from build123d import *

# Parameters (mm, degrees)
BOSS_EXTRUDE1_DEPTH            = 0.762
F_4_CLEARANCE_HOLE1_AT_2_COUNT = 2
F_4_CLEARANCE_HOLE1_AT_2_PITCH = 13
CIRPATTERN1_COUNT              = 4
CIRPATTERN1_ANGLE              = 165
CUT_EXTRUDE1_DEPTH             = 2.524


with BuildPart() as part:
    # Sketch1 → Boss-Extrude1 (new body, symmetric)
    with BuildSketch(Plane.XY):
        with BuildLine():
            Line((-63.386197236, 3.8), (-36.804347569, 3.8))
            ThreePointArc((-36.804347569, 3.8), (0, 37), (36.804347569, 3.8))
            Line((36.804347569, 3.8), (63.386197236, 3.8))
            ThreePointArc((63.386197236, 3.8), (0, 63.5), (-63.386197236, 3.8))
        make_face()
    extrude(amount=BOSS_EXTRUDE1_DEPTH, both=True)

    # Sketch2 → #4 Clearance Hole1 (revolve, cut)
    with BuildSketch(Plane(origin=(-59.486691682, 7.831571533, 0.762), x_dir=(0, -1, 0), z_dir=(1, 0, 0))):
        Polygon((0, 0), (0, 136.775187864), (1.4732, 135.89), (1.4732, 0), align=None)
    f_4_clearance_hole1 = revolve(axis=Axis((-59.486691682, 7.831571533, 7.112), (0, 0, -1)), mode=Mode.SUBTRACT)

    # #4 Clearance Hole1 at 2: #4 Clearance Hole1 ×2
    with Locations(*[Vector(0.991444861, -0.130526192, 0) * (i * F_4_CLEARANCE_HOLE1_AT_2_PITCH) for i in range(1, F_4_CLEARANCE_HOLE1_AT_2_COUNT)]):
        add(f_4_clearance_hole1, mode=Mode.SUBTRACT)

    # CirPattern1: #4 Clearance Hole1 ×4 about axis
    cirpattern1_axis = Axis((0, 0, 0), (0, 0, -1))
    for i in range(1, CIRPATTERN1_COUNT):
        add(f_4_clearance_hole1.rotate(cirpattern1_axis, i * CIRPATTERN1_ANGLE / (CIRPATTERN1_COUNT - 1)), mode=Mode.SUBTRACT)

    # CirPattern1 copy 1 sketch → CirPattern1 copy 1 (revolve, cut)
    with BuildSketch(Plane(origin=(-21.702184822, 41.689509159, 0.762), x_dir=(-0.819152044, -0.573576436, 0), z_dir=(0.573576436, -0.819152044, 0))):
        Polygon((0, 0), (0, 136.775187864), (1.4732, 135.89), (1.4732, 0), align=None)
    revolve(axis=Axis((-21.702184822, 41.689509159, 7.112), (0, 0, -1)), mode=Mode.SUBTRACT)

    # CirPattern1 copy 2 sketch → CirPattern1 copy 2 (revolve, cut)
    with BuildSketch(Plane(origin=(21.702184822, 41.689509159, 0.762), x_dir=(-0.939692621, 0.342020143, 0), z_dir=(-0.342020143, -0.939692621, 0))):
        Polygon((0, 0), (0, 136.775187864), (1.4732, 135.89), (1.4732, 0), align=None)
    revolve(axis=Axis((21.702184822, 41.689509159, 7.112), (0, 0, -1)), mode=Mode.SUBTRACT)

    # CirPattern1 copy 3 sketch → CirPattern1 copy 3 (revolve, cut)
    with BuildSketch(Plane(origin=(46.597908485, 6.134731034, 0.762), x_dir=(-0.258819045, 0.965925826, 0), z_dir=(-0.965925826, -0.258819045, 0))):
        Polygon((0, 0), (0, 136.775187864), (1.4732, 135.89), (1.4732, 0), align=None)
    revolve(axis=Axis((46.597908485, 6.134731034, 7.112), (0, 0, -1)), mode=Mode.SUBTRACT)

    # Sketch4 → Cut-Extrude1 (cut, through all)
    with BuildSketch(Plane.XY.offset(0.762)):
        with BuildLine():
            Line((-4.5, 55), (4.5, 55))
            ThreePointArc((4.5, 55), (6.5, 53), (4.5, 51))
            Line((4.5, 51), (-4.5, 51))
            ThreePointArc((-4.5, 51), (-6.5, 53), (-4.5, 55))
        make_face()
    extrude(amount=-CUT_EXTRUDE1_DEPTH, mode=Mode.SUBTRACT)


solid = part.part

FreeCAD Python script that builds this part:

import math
import FreeCAD as App
import Part
import Sketcher
from FreeCAD import Vector
Q = App.Units.Quantity


def add_polygon(sketch, points):
    """Adds a closed chain of lines whose ends are joined by coincident constraints."""
    first, n = sketch.GeometryCount, len(points)
    for a, b in zip(points, points[1:] + points[:1]):
        sketch.addGeometry(Part.LineSegment(App.Vector(*a, 0), App.Vector(*b, 0)), False)
    for i in range(n):
        sketch.addConstraint(Sketcher.Constraint("Coincident", first + i, 2, first + (i + 1) % n, 1))

doc = App.newDocument("Part")
body = doc.addObject("PartDesign::Body", "Body")

sketch1 = doc.addObject("Sketcher::SketchObject", "Sketch")
body.addObject(sketch1)
sketch1.AttachmentSupport = (doc.XY_Plane, [""])
sketch1.MapMode = "FlatFace"
sketch1.addGeometry(Part.LineSegment(Vector(-63, 4, 0), Vector(-37, 4, 0)), False)
sketch1.addGeometry(Part.ArcOfCircle(Part.Circle(Vector(0, 0, 0), Vector(0, 0, 1), 37), math.radians(6), math.radians(174)), False)
sketch1.addGeometry(Part.LineSegment(Vector(37, 4, 0), Vector(63, 4, 0)), False)
sketch1.addGeometry(Part.ArcOfCircle(Part.Circle(Vector(0, 0, 0), Vector(0, 0, 1), 64), math.radians(3), math.radians(177)), False)
sketch1.addConstraint(Sketcher.Constraint("Coincident", 0, 2, 1, 2))
sketch1.addConstraint(Sketcher.Constraint("Coincident", 1, 1, 2, 1))
sketch1.addConstraint(Sketcher.Constraint("Coincident", 2, 2, 3, 1))
sketch1.addConstraint(Sketcher.Constraint("Coincident", 3, 2, 0, 1))
sketch1.addConstraint(Sketcher.Constraint("Horizontal", 0))
sketch1.addConstraint(Sketcher.Constraint("Horizontal", 2))
sketch1.addConstraint(Sketcher.Constraint("Coincident", 1, 3, -1, 1))
sketch1.addConstraint(Sketcher.Constraint("Coincident", 3, 3, -1, 1))
sketch1.addConstraint(Sketcher.Constraint("Horizontal", 0, 2, 1, 1))
sketch1.addConstraint(Sketcher.Constraint("Radius", 3, Q("2.5 in")))
sketch1.addConstraint(Sketcher.Constraint("Radius", 1, Q("37 mm")))
sketch1.addConstraint(Sketcher.Constraint("DistanceX", 0, 1, 0, 2, Q("26.58185 mm")))
pad1 = doc.addObject("PartDesign::Pad", "Pad")
body.addObject(pad1)
pad1.Profile = sketch1
pad1.Length = Q("0.06 in")
pad1.Midplane = True

sketch2 = doc.addObject("Sketcher::SketchObject", "Sketch001")
body.addObject(sketch2)
sketch2.AttachmentSupport = (doc.YZ_Plane, [""])
sketch2.MapMode = "FlatFace"
sketch2.AttachmentOffset = App.Placement(Vector(0, 0, -59.486692), App.Rotation())
add_polygon(sketch2, [(7.8, -136), (7.8, 0.8), (6.4, 0.8), (6.4, -135.1)])
sketch2.addGeometry(Part.LineSegment(Vector(7.8, 0.8, 0), Vector(7.8, -136, 0)), True)
sketch2.addConstraint(Sketcher.Constraint("Vertical", 0))
sketch2.addConstraint(Sketcher.Constraint("Horizontal", 1))
sketch2.addConstraint(Sketcher.Constraint("Vertical", 2))
sketch2.addConstraint(Sketcher.Constraint("Vertical", 4))
sketch2.addConstraint(Sketcher.Constraint("Coincident", 4, 1, 0, 2))
sketch2.addConstraint(Sketcher.Constraint("Equal", 0, 4))
sketch2.addConstraint(Sketcher.Constraint("Angle", 3, Q("-31 deg")))
sketch2.addConstraint(Sketcher.Constraint("DistanceY", 2, 2, 2, 1, Q("5.35 in")))
sketch2.addConstraint(Sketcher.Constraint("DistanceX", 1, 2, 1, 1, Q("0.058 in")))
sketch2.addConstraint(Sketcher.Constraint("DistanceY", -1, 1, 0, 2, Q("0.03 in")))
sketch2.addConstraint(Sketcher.Constraint("DistanceX", -1, 1, 0, 2, Q("7.831572 mm")))
groove = doc.addObject("PartDesign::Groove", "Groove")
body.addObject(groove)
groove.Profile = sketch2
groove.ReferenceAxis = (sketch2, ["Axis0"])
groove.Angle = 360
doc.recompute()

datumline = doc.addObject("PartDesign::Line", "DatumLine")
body.addObject(datumline)
datumline.Placement = App.Placement(Vector(0, 0, 0), App.Rotation(Vector(0, 0, 1), Vector(0.991444861, -0.130526192, 0)))
linearpattern = doc.addObject("PartDesign::LinearPattern", "LinearPattern")
body.addObject(linearpattern)
linearpattern.Originals = [groove]
linearpattern.Direction = (datumline, [""])
linearpattern.Mode = "offset"
linearpattern.Offset = 13
linearpattern.Occurrences = 2
body.Tip = linearpattern
doc.recompute()

polarpattern = doc.addObject("PartDesign::PolarPattern", "PolarPattern")
body.addObject(polarpattern)
polarpattern.Originals = [groove]
polarpattern.Axis = (doc.Z_Axis, [""])
polarpattern.Angle = 165
polarpattern.Occurrences = 4
polarpattern.Reversed = True
body.Tip = polarpattern

sketch3 = doc.addObject("Sketcher::SketchObject", "Sketch002")
body.addObject(sketch3)
sketch3.Placement = App.Placement(Vector(-21.702185, 41.689509, 0.762), App.Rotation(Vector(-0.819152044, -0.573576436, 0), Vector(0, 0, -0.999999999), Vector(0.573576436, -0.819152044, 0), "ZXY"))
add_polygon(sketch3, [(0, 136.8), (0, 0), (1.5, 0), (1.5, 135.9)])
sketch3.addConstraint(Sketcher.Constraint("Vertical", 0))
sketch3.addConstraint(Sketcher.Constraint("Horizontal", 1))
sketch3.addConstraint(Sketcher.Constraint("Vertical", 2))
sketch3.addConstraint(Sketcher.Constraint("Coincident", 0, 2, -1, 1))
sketch3.addConstraint(Sketcher.Constraint("Angle", 3, Q("149 deg")))
sketch3.addConstraint(Sketcher.Constraint("DistanceY", 2, 1, 2, 2, Q("5.35 in")))
sketch3.addConstraint(Sketcher.Constraint("DistanceX", 1, 1, 1, 2, Q("0.058 in")))
groove2 = doc.addObject("PartDesign::Groove", "Groove001")
body.addObject(groove2)
groove2.Profile = sketch3
groove2.ReferenceAxis = (sketch3, ["V_Axis"])
groove2.Angle = 360

sketch4 = doc.addObject("Sketcher::SketchObject", "Sketch003")
body.addObject(sketch4)
sketch4.Placement = App.Placement(Vector(21.702185, 41.689509, 0.762), App.Rotation(Vector(-0.939692621, 0.342020143, 0), Vector(0, 0, -1), Vector(-0.342020143, -0.939692621, 0), "ZXY"))
add_polygon(sketch4, [(0, 136.8), (0, 0), (1.5, 0), (1.5, 135.9)])
sketch4.addConstraint(Sketcher.Constraint("Vertical", 0))
sketch4.addConstraint(Sketcher.Constraint("Horizontal", 1))
sketch4.addConstraint(Sketcher.Constraint("Vertical", 2))
sketch4.addConstraint(Sketcher.Constraint("Coincident", 0, 2, -1, 1))
sketch4.addConstraint(Sketcher.Constraint("Angle", 3, Q("149 deg")))
sketch4.addConstraint(Sketcher.Constraint("DistanceY", 2, 1, 2, 2, Q("5.35 in")))
sketch4.addConstraint(Sketcher.Constraint("DistanceX", 1, 1, 1, 2, Q("0.058 in")))
groove3 = doc.addObject("PartDesign::Groove", "Groove002")
body.addObject(groove3)
groove3.Profile = sketch4
groove3.ReferenceAxis = (sketch4, ["V_Axis"])
groove3.Angle = 360

sketch5 = doc.addObject("Sketcher::SketchObject", "Sketch004")
body.addObject(sketch5)
sketch5.Placement = App.Placement(Vector(46.597908, 6.134731, 0.762), App.Rotation(Vector(-0.258819045, 0.965925826, 0), Vector(0, 0, -0.999999999), Vector(-0.965925826, -0.258819045, 0), "ZXY"))
add_polygon(sketch5, [(0, 136.8), (0, 0), (1.5, 0), (1.5, 135.9)])
sketch5.addConstraint(Sketcher.Constraint("Vertical", 0))
sketch5.addConstraint(Sketcher.Constraint("Horizontal", 1))
sketch5.addConstraint(Sketcher.Constraint("Vertical", 2))
sketch5.addConstraint(Sketcher.Constraint("Coincident", 0, 2, -1, 1))
sketch5.addConstraint(Sketcher.Constraint("Angle", 3, Q("149 deg")))
sketch5.addConstraint(Sketcher.Constraint("DistanceY", 2, 1, 2, 2, Q("5.35 in")))
sketch5.addConstraint(Sketcher.Constraint("DistanceX", 1, 1, 1, 2, Q("0.058 in")))
groove4 = doc.addObject("PartDesign::Groove", "Groove003")
body.addObject(groove4)
groove4.Profile = sketch5
groove4.ReferenceAxis = (sketch5, ["V_Axis"])
groove4.Angle = 360

sketch6 = doc.addObject("Sketcher::SketchObject", "Sketch005")
body.addObject(sketch6)
sketch6.AttachmentSupport = (doc.XY_Plane, [""])
sketch6.MapMode = "FlatFace"
sketch6.AttachmentOffset = App.Placement(Vector(0, 0, 0.03 * 25.4), App.Rotation())
sketch6.addGeometry(Part.LineSegment(Vector(4.5, 55, 0), Vector(-4.5, 55, 0)), False)
sketch6.addGeometry(Part.ArcOfCircle(Part.Circle(Vector(-4.5, 53, 0), Vector(0, 0, 1), 2), math.radians(90), math.radians(270)), False)
sketch6.addGeometry(Part.LineSegment(Vector(-4.5, 51, 0), Vector(4.5, 51, 0)), False)
sketch6.addGeometry(Part.ArcOfCircle(Part.Circle(Vector(4.5, 53, 0), Vector(0, 0, 1), 2), math.radians(-90), math.radians(90)), False)
sketch6.addConstraint(Sketcher.Constraint("Tangent", 0, 2, 1, 1))
sketch6.addConstraint(Sketcher.Constraint("Tangent", 1, 2, 2, 1))
sketch6.addConstraint(Sketcher.Constraint("Tangent", 2, 2, 3, 1))
sketch6.addConstraint(Sketcher.Constraint("Tangent", 3, 2, 0, 1))
sketch6.addConstraint(Sketcher.Constraint("Horizontal", 0))
sketch6.addConstraint(Sketcher.Constraint("Horizontal", 2))
sketch6.addConstraint(Sketcher.Constraint("Radius", 1, Q("2 mm")))
sketch6.addConstraint(Sketcher.Constraint("DistanceX", 0, 2, 0, 1, Q("9 mm")))
sketch6.addConstraint(Sketcher.Constraint("DistanceX", 1, 3, -1, 1, Q("4.5 mm")))
sketch6.addConstraint(Sketcher.Constraint("DistanceY", -1, 1, 1, 3, Q("53 mm")))
pocket1 = doc.addObject("PartDesign::Pocket", "Pocket")
body.addObject(pocket1)
pocket1.Profile = sketch6
pocket1.Type = "ThroughAll"

doc.recompute()
